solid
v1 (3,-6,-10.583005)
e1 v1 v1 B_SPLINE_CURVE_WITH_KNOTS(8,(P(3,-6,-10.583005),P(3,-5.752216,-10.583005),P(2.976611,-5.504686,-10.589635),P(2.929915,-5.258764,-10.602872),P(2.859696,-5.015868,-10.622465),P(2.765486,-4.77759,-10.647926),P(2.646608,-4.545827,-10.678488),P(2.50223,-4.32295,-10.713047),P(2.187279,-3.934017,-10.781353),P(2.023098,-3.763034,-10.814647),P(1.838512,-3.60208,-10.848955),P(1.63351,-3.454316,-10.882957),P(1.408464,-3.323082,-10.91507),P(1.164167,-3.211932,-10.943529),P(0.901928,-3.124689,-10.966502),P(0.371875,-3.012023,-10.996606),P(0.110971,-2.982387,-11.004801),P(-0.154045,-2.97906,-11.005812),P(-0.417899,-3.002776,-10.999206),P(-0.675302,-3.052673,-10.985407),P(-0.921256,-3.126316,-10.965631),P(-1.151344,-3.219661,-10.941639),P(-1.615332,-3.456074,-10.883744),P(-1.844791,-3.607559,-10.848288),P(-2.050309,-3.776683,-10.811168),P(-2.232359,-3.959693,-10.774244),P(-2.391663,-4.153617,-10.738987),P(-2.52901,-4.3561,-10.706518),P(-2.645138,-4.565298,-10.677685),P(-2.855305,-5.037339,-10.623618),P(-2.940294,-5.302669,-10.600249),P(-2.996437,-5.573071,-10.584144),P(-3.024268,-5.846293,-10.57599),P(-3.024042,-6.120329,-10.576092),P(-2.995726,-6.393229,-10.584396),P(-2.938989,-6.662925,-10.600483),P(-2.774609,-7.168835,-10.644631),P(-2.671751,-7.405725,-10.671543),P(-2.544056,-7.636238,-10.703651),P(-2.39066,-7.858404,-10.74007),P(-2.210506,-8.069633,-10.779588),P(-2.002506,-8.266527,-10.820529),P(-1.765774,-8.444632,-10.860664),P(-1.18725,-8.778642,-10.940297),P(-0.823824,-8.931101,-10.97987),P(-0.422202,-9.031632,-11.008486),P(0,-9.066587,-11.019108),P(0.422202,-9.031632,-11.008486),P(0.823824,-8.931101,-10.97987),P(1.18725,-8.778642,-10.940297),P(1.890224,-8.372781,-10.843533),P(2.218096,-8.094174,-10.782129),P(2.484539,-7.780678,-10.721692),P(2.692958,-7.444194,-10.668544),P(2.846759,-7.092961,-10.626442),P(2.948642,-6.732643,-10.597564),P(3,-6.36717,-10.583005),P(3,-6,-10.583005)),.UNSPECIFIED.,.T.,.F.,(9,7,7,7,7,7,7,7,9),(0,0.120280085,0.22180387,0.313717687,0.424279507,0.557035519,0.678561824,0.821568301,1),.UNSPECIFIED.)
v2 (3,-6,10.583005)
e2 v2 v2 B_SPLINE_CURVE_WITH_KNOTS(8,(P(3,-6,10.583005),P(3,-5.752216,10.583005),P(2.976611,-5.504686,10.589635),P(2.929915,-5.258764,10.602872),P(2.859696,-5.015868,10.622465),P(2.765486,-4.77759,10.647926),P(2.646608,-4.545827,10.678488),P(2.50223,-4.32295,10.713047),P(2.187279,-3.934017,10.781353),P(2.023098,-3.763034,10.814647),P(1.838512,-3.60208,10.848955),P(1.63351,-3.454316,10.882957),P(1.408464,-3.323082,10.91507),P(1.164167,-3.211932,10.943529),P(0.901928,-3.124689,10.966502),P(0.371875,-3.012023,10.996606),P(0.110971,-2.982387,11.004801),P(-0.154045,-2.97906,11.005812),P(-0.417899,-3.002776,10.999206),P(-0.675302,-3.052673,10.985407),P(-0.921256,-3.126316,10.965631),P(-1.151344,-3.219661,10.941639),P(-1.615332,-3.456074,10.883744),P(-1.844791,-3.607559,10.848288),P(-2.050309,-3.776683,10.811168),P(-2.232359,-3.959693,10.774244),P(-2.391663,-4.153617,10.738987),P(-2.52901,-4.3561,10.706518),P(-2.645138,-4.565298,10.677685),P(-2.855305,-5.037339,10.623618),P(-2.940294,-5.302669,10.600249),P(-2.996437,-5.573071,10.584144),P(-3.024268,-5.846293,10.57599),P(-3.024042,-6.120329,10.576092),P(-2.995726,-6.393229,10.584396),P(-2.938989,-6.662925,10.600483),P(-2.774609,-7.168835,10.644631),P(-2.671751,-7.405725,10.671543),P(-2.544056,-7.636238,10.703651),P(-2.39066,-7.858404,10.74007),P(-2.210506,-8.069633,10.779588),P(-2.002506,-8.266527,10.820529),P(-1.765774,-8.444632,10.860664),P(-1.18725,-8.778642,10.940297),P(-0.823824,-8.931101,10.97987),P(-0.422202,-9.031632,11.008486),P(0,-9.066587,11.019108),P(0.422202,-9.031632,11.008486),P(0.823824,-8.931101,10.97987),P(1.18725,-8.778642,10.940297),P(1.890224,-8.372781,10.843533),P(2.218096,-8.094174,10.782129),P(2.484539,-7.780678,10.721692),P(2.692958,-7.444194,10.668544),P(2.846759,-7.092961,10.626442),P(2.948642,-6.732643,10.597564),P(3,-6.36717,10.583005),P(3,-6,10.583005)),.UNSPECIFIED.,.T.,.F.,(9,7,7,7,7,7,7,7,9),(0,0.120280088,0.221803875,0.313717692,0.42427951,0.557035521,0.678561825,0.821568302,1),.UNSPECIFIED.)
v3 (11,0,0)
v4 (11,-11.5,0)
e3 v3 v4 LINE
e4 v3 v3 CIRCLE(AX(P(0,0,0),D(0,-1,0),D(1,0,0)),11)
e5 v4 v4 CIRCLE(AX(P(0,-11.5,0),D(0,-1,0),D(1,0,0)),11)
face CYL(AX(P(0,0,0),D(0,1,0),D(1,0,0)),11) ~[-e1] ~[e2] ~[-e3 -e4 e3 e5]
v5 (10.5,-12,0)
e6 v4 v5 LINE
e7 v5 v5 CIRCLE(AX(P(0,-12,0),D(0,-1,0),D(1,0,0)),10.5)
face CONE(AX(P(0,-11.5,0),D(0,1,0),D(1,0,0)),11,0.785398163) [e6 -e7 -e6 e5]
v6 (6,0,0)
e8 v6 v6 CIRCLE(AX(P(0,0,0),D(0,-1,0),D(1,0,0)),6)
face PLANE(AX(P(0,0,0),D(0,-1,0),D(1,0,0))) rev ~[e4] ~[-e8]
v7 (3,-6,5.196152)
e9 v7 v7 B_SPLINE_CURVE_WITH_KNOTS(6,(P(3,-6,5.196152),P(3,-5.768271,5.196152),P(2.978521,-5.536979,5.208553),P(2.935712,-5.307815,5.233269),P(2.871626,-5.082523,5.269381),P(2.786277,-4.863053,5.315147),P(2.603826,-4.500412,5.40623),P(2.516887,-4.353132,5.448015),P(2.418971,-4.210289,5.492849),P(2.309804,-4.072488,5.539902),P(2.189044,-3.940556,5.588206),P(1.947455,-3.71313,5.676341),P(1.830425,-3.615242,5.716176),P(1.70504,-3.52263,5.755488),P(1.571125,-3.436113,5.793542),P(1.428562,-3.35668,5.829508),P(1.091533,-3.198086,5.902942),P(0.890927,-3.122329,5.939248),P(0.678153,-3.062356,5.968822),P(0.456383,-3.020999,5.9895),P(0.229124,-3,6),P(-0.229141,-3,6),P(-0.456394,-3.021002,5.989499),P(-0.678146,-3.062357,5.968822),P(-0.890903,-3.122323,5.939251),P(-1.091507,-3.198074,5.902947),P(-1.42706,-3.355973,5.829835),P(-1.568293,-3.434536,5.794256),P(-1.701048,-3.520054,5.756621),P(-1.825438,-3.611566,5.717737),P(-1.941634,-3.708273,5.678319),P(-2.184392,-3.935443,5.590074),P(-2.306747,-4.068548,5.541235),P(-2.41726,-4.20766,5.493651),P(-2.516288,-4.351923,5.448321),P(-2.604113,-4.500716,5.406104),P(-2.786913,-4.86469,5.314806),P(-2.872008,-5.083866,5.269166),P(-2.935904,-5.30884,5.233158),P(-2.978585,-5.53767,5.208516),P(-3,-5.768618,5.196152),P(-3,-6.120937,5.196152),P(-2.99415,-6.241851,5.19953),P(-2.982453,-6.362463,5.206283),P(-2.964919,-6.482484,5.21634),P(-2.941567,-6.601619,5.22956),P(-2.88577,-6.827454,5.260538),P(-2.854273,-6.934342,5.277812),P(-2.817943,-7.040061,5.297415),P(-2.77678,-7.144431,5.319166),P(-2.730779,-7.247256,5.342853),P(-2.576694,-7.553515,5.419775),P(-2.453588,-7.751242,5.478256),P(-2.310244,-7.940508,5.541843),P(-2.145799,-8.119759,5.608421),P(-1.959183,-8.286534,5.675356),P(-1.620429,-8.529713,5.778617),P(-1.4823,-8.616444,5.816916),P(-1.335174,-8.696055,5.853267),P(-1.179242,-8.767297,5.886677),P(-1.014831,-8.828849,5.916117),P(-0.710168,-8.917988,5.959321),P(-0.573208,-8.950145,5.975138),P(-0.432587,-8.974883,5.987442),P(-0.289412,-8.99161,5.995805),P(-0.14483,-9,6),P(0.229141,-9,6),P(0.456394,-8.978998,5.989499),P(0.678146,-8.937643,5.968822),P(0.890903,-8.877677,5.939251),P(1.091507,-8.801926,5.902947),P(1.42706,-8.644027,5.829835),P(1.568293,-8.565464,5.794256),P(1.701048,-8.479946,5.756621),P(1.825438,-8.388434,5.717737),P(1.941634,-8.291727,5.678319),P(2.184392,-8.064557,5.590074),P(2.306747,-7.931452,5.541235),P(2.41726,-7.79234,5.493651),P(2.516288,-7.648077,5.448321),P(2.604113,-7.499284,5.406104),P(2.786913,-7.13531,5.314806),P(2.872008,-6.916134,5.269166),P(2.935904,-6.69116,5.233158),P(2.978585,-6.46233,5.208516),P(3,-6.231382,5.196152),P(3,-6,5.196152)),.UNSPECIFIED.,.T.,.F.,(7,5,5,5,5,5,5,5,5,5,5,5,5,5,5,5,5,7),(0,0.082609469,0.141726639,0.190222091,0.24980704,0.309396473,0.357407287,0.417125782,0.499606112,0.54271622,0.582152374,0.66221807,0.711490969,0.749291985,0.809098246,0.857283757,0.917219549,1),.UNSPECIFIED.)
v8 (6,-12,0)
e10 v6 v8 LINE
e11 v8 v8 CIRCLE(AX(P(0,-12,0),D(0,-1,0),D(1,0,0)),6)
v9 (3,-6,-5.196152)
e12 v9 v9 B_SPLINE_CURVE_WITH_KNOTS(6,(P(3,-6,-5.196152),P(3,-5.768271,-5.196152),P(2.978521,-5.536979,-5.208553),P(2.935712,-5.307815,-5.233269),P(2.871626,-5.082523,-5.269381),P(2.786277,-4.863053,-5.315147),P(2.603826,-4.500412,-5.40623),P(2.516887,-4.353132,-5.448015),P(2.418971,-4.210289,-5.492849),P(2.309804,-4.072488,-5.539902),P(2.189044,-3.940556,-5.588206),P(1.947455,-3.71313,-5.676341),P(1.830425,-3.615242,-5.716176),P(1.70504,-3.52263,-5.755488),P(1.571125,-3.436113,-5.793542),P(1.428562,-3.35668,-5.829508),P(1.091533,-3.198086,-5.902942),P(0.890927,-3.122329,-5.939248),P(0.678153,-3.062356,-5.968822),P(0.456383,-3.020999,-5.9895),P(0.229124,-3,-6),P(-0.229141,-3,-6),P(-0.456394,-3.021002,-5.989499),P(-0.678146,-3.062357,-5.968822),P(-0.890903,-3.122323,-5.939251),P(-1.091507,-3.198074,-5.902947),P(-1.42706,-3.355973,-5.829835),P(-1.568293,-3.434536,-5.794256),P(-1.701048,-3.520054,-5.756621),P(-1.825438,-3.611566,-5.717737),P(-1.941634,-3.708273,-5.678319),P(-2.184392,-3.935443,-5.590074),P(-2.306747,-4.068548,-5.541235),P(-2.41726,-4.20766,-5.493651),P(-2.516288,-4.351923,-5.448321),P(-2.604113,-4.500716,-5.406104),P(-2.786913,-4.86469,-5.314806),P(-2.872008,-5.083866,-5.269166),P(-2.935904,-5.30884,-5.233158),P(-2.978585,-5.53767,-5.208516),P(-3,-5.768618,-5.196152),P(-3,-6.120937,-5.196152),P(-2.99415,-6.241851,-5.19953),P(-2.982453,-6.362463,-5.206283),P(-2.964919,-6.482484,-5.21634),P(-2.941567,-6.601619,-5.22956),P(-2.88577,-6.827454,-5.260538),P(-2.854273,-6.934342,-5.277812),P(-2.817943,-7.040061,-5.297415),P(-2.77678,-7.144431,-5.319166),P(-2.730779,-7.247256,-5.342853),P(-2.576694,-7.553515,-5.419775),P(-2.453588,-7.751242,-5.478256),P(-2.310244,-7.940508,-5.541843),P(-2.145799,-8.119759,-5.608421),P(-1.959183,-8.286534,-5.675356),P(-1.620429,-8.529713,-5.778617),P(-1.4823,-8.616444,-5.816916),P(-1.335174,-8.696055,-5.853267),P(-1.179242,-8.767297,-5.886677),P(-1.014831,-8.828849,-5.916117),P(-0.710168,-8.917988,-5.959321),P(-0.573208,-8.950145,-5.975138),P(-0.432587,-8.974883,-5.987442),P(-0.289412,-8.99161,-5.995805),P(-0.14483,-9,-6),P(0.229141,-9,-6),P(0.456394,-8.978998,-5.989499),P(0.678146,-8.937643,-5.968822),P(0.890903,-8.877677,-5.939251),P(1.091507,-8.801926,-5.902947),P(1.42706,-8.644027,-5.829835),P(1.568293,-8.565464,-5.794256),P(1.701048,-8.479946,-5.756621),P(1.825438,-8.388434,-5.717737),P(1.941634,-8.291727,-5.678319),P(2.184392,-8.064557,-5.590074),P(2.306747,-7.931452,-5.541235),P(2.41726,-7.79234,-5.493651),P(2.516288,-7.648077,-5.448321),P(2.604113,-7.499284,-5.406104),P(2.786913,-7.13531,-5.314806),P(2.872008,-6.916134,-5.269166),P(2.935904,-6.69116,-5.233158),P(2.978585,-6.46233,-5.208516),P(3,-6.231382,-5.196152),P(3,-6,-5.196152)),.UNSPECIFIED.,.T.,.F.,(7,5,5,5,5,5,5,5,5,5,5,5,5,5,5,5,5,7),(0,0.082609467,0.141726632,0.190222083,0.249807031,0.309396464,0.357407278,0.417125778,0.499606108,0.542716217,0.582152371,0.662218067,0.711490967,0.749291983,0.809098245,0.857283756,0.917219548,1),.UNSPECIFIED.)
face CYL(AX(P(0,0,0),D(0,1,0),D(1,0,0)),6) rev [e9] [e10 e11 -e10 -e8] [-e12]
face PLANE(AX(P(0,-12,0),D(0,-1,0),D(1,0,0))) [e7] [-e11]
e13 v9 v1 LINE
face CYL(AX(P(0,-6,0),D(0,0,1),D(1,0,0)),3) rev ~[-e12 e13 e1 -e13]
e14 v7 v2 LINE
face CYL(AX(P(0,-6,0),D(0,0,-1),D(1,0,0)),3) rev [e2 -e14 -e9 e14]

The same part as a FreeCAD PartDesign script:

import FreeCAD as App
import Part
import Sketcher
from FreeCAD import Vector
Q = App.Units.Quantity


def edges_at(feature, points):
    """Names of the edges that pass closest to the given points."""
    edges = feature.Shape.Edges
    near = lambda p: min(range(len(edges)), key=lambda i: edges[i].distToShape(Part.Vertex(*p))[0])
    return sorted({f"Edge{near(p) + 1}" for p in points})

doc = App.newDocument("Part")
params = doc.addObject("Spreadsheet::Sheet", "Params")
for row, (alias, value) in enumerate([
    ("sketch1_diameter", "22 mm"),
    ("sketch1_diameter2", "12 mm"),
    ("pad1_length", "12 mm"),
    ("chamfer_size", "0.5 mm"),
    ("sketch2_diameter", "6 mm"),
], start=1):
    params.set(f"A{row}", alias)
    params.set(f"B{row}", "=" + value)
    params.setAlias(f"B{row}", alias)

body = doc.addObject("PartDesign::Body", "Body")

# Sketch on XZ plane
sketch1 = body.newObject("Sketcher::SketchObject", "Sketch")
sketch1.AttachmentSupport = (doc.getObject("XZ_Plane"), [""])
sketch1.MapMode = "FlatFace"
sketch1.addGeometry([
    Part.Circle(Vector(0, 0, 0), Vector(0, 0, 1), 11),
    Part.Circle(Vector(0, 0, 0), Vector(0, 0, 1), 6),
], False)
sketch1.addConstraint([
    Sketcher.Constraint("Coincident", 0, 3, -1, 1),
    Sketcher.Constraint("Coincident", 1, 3, -1, 1),
    Sketcher.Constraint("Diameter", 0, Q("22 mm")),
    Sketcher.Constraint("Diameter", 1, Q("12 mm")),
])
sketch1.setExpression("Constraints[2]", "Params.sketch1_diameter")
sketch1.setExpression("Constraints[3]", "Params.sketch1_diameter2")
pad1 = body.newObject("PartDesign::Pad", "Pad")
pad1.Profile = sketch1
pad1.setExpression("Length", "Params.pad1_length")
doc.recompute()

chamfer = body.newObject("PartDesign::Chamfer", "Chamfer")
chamfer.Base = (pad1, edges_at(pad1, [(-11, -12, 0)]))
chamfer.setExpression("Size", "Params.chamfer_size")

# Sketch on XY plane
sketch2 = body.newObject("Sketcher::SketchObject", "Sketch001")
sketch2.AttachmentSupport = (doc.getObject("XY_Plane"), [""])
sketch2.MapMode = "FlatFace"
sketch2.addGeometry(Part.Circle(Vector(0, -6, 0), Vector(0, 0, 1), 3), False)
sketch2.addConstraint([
    Sketcher.Constraint("PointOnObject", 0, 3, -2),
    Sketcher.Constraint("Diameter", 0, Q("6 mm")),
    Sketcher.Constraint("DistanceY", 0, 3, -1, 1, Q("6 mm")),
])
sketch2.setExpression("Constraints[1]", "Params.sketch2_diameter")
pocket1 = body.newObject("PartDesign::Pocket", "Pocket")
pocket1.Profile = sketch2
pocket1.Type = "ThroughAll"
pocket1.Midplane = True

doc.recompute()
